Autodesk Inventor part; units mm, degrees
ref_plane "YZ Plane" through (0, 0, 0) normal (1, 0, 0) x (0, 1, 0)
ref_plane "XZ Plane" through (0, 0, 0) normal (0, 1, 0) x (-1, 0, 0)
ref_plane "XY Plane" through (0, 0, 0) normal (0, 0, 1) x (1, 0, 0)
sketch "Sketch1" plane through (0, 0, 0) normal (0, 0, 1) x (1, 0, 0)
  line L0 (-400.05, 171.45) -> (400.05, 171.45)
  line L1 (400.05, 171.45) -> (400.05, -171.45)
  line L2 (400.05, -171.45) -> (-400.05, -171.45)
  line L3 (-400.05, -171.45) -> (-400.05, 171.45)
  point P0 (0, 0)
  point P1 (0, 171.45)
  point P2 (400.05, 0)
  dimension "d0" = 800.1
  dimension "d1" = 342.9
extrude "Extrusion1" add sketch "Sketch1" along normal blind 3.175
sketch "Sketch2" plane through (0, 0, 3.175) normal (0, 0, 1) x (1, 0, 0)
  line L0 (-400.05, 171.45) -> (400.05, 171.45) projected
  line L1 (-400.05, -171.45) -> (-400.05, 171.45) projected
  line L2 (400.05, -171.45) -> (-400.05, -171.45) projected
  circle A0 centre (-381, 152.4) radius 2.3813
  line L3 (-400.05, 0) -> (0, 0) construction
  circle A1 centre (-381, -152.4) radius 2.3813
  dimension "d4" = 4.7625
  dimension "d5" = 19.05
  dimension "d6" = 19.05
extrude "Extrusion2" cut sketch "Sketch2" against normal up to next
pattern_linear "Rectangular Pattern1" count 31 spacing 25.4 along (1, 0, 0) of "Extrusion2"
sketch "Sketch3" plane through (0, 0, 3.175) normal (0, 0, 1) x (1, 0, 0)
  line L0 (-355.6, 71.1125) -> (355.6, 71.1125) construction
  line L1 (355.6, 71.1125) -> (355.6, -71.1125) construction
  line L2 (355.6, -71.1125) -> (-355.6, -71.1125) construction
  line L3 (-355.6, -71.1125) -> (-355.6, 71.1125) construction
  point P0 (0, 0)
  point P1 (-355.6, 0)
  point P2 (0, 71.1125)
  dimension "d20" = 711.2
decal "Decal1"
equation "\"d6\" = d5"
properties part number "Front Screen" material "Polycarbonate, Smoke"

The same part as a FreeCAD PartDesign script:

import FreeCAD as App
import Part
import Sketcher

V = App.Vector
Q = App.Units.Quantity

doc = App.newDocument("Part")
body = doc.addObject("PartDesign::Body", "Body")

sketch1 = body.newObject("Sketcher::SketchObject", "Sketch")
sketch1.AttachmentSupport = (doc.getObject("XY_Plane"), [""])
sketch1.MapMode = "FlatFace"
sketch1.addGeometry([
    Part.LineSegment(V(400, 171, 0), V(-400, 171, 0)),
    Part.LineSegment(V(-400, 171, 0), V(-400, -171, 0)),
    Part.LineSegment(V(-400, -171, 0), V(400, -171, 0)),
    Part.LineSegment(V(400, -171, 0), V(400, 171, 0)),
], False)
sketch1.addConstraint([
    Sketcher.Constraint("Coincident", 0, 2, 1, 1),
    Sketcher.Constraint("Coincident", 1, 2, 2, 1),
    Sketcher.Constraint("Coincident", 2, 2, 3, 1),
    Sketcher.Constraint("Coincident", 3, 2, 0, 1),
    Sketcher.Constraint("Horizontal", 0),
    Sketcher.Constraint("Vertical", 1),
    Sketcher.Constraint("Horizontal", 2),
    Sketcher.Constraint("Vertical", 3),
    Sketcher.Constraint("Symmetric", 0, 2, 2, 2, -1, 1),
    Sketcher.Constraint("DistanceX", 0, 2, 0, 1, Q("31.5 in")),
    Sketcher.Constraint("DistanceY", 1, 2, 1, 1, Q("13.5 in")),
])
pad1 = body.newObject("PartDesign::Pad", "Pad")
pad1.Profile = sketch1
pad1.Length = Q("0.125 in")

sketch2 = body.newObject("Sketcher::SketchObject", "Sketch001")
sketch2.AttachmentSupport = (doc.getObject("XY_Plane"), [""])
sketch2.MapMode = "FlatFace"
sketch2.AttachmentOffset = App.Placement(V(0, 0, 0.125 * 25.4), App.Rotation())
sketch2.addGeometry([
    Part.Circle(V(-381, 152.4, 0), V(0, 0, 1), 2.4),
    Part.Circle(V(-381, -152.4, 0), V(0, 0, 1), 2.4),
], False)
sketch2.addConstraint([
    Sketcher.Constraint("Equal", 0, 1),
    Sketcher.Constraint("Symmetric", 0, 3, 1, 3, -1),
    Sketcher.Constraint("Diameter", 0, Q("0.1875 in")),
    Sketcher.Constraint("DistanceX", 0, 3, -1, 1, Q("15 in")),
    Sketcher.Constraint("DistanceY", -1, 1, 0, 3, Q("6 in")),
])
pocket1 = body.newObject("PartDesign::Pocket", "Pocket")
pocket1.Profile = sketch2
pocket1.Length = Q("0.125 in")
doc.recompute()

linearpattern = body.newObject("PartDesign::LinearPattern", "LinearPattern")
linearpattern.Originals = [pocket1]
linearpattern.Direction = (doc.getObject("X_Axis"), [""])
linearpattern.Mode = "offset"
linearpattern.Offset = Q("1 in")
linearpattern.Occurrences = 31
body.Tip = linearpattern

doc.recompute()
